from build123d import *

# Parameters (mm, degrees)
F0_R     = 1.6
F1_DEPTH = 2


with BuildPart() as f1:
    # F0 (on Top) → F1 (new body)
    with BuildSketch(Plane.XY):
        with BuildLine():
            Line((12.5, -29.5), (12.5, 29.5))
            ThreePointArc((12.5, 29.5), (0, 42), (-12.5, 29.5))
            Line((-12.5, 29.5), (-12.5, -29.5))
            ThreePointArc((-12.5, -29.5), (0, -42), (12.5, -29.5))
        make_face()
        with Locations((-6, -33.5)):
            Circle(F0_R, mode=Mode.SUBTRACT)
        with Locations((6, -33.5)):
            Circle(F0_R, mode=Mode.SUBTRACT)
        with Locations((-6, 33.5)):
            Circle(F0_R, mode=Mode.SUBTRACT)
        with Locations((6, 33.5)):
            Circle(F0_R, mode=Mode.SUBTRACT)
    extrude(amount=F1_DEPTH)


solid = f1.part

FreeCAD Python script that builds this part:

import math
import FreeCAD as App
import Part
import Sketcher
from FreeCAD import Vector
Q = App.Units.Quantity

doc = App.newDocument("Part")
params = doc.addObject("Spreadsheet::Sheet", "Params")
for row, (alias, value) in enumerate([
    ("sketch1_diameter", "3.2 mm"),
    ("sketch1_radius", "12.5 mm"),
    ("sketch1_height", "59 mm"),
    ("pad1_length", "2 mm"),
], start=1):
    params.set(f"A{row}", alias)
    params.set(f"B{row}", "=" + value)
    params.setAlias(f"B{row}", alias)

body = doc.addObject("PartDesign::Body", "Body")

sketch1 = body.newObject("Sketcher::SketchObject", "Sketch")
sketch1.AttachmentSupport = (doc.getObject("XY_Plane"), [""])
sketch1.MapMode = "FlatFace"
sketch1.addGeometry(Part.LineSegment(Vector(12.5, -29.5, 0), Vector(12.5, 29.5, 0)), False)
sketch1.addGeometry(Part.ArcOfCircle(Part.Circle(Vector(0, 29.5, 0), Vector(0, 0, 1), 12.5), math.radians(0), math.radians(180)), False)
sketch1.addGeometry(Part.LineSegment(Vector(-12.5, 29.5, 0), Vector(-12.5, -29.5, 0)), False)
sketch1.addGeometry(Part.ArcOfCircle(Part.Circle(Vector(0, -29.5, 0), Vector(0, 0, 1), 12.5), math.radians(180), math.radians(360)), False)
sketch1.addGeometry(Part.Circle(Vector(-6, -33.5, 0), Vector(0, 0, 1), 1.6), False)
sketch1.addGeometry(Part.Circle(Vector(6, -33.5, 0), Vector(0, 0, 1), 1.6), False)
sketch1.addGeometry(Part.Circle(Vector(-6, 33.5, 0), Vector(0, 0, 1), 1.6), False)
sketch1.addGeometry(Part.Circle(Vector(6, 33.5, 0), Vector(0, 0, 1), 1.6), False)
sketch1.addConstraint(Sketcher.Constraint("Tangent", 0, 2, 1, 1))
sketch1.addConstraint(Sketcher.Constraint("Tangent", 1, 2, 2, 1))
sketch1.addConstraint(Sketcher.Constraint("Tangent", 2, 2, 3, 1))
sketch1.addConstraint(Sketcher.Constraint("Tangent", 3, 2, 0, 1))
sketch1.addConstraint(Sketcher.Constraint("Vertical", 0))
sketch1.addConstraint(Sketcher.Constraint("Vertical", 2))
sketch1.addConstraint(Sketcher.Constraint("Equal", 4, 5))
sketch1.addConstraint(Sketcher.Constraint("Equal", 5, 6))
sketch1.addConstraint(Sketcher.Constraint("Equal", 6, 7))
sketch1.addConstraint(Sketcher.Constraint("Symmetric", 1, 3, 3, 3, -1, 1))
sketch1.addConstraint(Sketcher.Constraint("Symmetric", 5, 3, 6, 3, -1, 1))
sketch1.addConstraint(Sketcher.Constraint("Symmetric", 4, 3, 7, 3, -1, 1))
sketch1.addConstraint(Sketcher.Constraint("Symmetric", 4, 3, 5, 3, -2))
sketch1.addConstraint(Sketcher.Constraint("Diameter", 4, Q("3.2 mm")))
sketch1.addConstraint(Sketcher.Constraint("Radius", 1, Q("12.5 mm")))
sketch1.addConstraint(Sketcher.Constraint("DistanceY", 0, 1, 0, 2, Q("59 mm")))
sketch1.addConstraint(Sketcher.Constraint("DistanceX", 4, 3, -1, 1, Q("6 mm")))
sketch1.addConstraint(Sketcher.Constraint("DistanceY", 4, 3, 3, 3, Q("4 mm")))
sketch1.setExpression("Constraints[13]", "Params.sketch1_diameter")
sketch1.setExpression("Constraints[14]", "Params.sketch1_radius")
sketch1.setExpression("Constraints[15]", "Params.sketch1_height")
pad1 = body.newObject("PartDesign::Pad", "Pad")
pad1.Profile = sketch1
pad1.setExpression("Length", "Params.pad1_length")

doc.recompute()
